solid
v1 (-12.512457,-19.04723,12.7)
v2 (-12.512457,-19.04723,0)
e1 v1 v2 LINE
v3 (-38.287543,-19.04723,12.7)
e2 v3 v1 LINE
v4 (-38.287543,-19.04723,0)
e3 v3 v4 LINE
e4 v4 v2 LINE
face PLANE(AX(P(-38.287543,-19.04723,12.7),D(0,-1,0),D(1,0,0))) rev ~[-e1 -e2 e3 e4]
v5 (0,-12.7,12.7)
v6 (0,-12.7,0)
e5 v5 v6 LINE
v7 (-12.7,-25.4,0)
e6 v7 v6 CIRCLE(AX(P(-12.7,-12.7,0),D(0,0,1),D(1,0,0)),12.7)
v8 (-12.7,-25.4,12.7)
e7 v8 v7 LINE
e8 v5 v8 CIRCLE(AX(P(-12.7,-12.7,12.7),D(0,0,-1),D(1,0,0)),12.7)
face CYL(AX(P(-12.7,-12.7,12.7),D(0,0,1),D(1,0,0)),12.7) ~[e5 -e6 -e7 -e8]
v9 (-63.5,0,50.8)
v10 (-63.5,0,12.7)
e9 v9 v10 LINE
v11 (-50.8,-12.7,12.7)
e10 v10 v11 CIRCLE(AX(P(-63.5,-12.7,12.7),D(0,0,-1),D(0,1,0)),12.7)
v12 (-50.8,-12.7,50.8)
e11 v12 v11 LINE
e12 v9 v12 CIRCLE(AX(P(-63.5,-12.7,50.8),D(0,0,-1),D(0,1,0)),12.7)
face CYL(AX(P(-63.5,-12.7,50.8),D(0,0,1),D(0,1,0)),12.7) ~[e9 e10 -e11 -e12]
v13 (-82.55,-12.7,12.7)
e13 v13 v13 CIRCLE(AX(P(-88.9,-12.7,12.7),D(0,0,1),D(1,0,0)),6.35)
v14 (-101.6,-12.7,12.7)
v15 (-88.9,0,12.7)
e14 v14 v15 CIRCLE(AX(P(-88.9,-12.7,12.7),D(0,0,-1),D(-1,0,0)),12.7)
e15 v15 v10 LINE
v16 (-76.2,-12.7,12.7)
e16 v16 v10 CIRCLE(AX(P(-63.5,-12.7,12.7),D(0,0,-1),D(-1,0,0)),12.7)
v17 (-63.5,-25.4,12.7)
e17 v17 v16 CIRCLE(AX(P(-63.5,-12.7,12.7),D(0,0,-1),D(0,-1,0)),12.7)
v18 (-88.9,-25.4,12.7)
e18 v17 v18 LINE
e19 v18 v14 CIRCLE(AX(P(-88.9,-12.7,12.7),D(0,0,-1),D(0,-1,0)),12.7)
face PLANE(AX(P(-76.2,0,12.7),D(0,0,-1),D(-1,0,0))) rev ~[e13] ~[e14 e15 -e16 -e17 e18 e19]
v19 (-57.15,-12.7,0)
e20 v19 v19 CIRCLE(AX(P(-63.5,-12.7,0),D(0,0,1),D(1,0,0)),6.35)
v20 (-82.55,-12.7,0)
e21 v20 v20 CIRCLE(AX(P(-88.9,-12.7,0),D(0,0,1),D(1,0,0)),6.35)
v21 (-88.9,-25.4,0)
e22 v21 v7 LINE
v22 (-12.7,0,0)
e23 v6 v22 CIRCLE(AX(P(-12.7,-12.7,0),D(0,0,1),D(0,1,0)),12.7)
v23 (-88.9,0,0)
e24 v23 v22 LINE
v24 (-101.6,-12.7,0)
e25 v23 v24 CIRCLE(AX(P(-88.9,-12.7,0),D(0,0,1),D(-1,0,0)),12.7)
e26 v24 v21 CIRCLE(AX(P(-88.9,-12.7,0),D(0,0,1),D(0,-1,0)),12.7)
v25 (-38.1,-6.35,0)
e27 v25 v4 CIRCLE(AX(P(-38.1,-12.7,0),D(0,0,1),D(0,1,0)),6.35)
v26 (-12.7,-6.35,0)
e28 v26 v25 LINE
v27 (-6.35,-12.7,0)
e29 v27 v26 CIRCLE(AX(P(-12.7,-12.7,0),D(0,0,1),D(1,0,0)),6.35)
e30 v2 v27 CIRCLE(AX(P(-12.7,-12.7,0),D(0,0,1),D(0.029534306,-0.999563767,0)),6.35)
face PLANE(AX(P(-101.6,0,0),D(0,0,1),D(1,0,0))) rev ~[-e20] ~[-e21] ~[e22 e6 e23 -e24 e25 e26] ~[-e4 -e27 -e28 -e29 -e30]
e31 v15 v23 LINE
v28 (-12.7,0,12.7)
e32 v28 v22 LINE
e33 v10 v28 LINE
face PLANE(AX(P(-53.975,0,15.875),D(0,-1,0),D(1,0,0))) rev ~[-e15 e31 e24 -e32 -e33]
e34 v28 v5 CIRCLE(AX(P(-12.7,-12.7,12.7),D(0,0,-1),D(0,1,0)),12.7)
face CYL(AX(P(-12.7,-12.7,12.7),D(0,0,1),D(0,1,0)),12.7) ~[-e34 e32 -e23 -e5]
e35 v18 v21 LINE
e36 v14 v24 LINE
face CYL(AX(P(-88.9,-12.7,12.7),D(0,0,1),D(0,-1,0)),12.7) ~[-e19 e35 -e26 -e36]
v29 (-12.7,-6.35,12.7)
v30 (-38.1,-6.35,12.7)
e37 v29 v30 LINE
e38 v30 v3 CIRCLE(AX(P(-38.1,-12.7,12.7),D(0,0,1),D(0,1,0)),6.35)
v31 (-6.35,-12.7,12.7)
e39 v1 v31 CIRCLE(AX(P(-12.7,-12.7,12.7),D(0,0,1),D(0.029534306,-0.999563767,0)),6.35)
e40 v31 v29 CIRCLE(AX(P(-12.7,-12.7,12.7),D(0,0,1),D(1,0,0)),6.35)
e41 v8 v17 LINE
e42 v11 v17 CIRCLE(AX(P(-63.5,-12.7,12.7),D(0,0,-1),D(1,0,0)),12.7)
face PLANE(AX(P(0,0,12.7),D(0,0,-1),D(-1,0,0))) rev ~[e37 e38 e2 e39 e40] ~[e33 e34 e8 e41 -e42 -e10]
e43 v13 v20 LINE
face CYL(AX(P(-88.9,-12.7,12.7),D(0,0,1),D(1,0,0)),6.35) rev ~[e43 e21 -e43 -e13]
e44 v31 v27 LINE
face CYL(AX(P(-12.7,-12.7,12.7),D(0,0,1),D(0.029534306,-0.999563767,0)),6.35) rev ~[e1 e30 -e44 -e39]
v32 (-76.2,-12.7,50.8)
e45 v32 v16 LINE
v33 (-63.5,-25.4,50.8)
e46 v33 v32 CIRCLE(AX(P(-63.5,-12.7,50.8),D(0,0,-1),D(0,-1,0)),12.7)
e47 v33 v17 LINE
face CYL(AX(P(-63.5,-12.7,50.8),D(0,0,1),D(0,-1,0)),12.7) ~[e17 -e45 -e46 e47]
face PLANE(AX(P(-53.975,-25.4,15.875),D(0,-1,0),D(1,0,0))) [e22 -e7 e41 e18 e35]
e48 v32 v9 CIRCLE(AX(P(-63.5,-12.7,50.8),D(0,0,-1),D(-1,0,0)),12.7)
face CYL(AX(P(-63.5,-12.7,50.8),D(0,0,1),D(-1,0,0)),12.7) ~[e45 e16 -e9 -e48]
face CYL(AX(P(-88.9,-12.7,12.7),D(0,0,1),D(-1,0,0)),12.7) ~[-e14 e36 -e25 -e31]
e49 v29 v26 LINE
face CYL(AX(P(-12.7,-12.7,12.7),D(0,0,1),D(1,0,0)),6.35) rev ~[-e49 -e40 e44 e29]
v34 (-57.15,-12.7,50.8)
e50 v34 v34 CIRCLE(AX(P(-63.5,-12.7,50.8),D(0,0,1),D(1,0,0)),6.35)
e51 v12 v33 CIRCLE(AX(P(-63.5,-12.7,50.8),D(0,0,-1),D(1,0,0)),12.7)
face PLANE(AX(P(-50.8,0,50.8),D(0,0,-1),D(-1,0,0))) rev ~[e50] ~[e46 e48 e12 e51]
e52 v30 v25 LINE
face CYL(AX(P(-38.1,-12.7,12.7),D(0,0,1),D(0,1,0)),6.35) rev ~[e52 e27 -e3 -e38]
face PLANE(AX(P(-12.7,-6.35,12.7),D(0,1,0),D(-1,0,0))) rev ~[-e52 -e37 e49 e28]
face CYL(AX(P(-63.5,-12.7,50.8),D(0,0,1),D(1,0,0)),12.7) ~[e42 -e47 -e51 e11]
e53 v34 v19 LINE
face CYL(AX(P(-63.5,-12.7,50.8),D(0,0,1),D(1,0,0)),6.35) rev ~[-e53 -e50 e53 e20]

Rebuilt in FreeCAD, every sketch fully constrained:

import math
import FreeCAD as App
import Part
import Sketcher
Q = App.Units.Quantity


def add_polygon(sketch, points):
    """Adds a closed chain of lines whose ends are joined by coincident constraints."""
    first, n = sketch.GeometryCount, len(points)
    for a, b in zip(points, points[1:] + points[:1]):
        sketch.addGeometry(Part.LineSegment(App.Vector(*a, 0), App.Vector(*b, 0)), False)
    for i in range(n):
        sketch.addConstraint(Sketcher.Constraint("Coincident", first + i, 2, first + (i + 1) % n, 1))

doc = App.newDocument("Part")
body = doc.addObject("PartDesign::Body", "Body")

# Sketch on XZ plane
sketch1 = body.newObject("Sketcher::SketchObject", "Sketch")
sketch1.AttachmentSupport = (doc.getObject("XZ_Plane"), [""])
sketch1.MapMode = "FlatFace"
add_polygon(sketch1, [(-102, 0), (0, 0), (0, 13), (-51, 13), (-51, 51), (-76, 51), (-76, 13), (-102, 13)])  # lines 0-7
sketch1.addConstraint([
    Sketcher.Constraint("Horizontal", 0),
    Sketcher.Constraint("Vertical", 1),
    Sketcher.Constraint("Horizontal", 2),
    Sketcher.Constraint("Vertical", 3),
    Sketcher.Constraint("Horizontal", 4),
    Sketcher.Constraint("Vertical", 5),
    Sketcher.Constraint("Horizontal", 6),
    Sketcher.Constraint("Vertical", 7),
    Sketcher.Constraint("Coincident", 0, 2, -1, 1),
    Sketcher.Constraint("Horizontal", 2, 2, 5, 2),
    Sketcher.Constraint("Equal", 4, 6),
    Sketcher.Constraint("DistanceX", 0, 1, 0, 2, Q("4 in")),
    Sketcher.Constraint("DistanceX", 2, 2, 2, 1, Q("2 in")),
    Sketcher.Constraint("DistanceY", 1, 1, 1, 2, Q("0.5 in")),
    Sketcher.Constraint("DistanceY", 3, 1, 3, 2, Q("1.5 in")),
])
pad1 = body.newObject("PartDesign::Pad", "Pad")
pad1.Profile = sketch1
pad1.Length = Q("1 in")

# Sketch on XY plane
sketch2 = body.newObject("Sketcher::SketchObject", "Sketch001")
sketch2.AttachmentSupport = (doc.getObject("XY_Plane"), [""])
sketch2.MapMode = "FlatFace"
sketch2.AttachmentOffset = App.Placement(App.Vector(0, 0, 2 * 25.4), App.Rotation())
sketch2.addGeometry([
    Part.ArcOfCircle(Part.Circle(App.Vector(-64, -13, 0), App.Vector(0, 0, 1), 13), math.radians(0), math.radians(90)),  # 0
    Part.LineSegment(App.Vector(-51, -13, 0), App.Vector(-51, 0, 0)),  # 1
    Part.LineSegment(App.Vector(-51, 0, 0), App.Vector(-64, 0, 0)),  # 2
    Part.ArcOfCircle(Part.Circle(App.Vector(-64, -13, 0), App.Vector(0, 0, 1), 13), math.radians(90), math.radians(180)),  # 3
    Part.LineSegment(App.Vector(-64, 0, 0), App.Vector(-76, 0, 0)),  # 4
    Part.LineSegment(App.Vector(-76, 0, 0), App.Vector(-76, -13, 0)),  # 5
    Part.LineSegment(App.Vector(-76, -25, 0), App.Vector(-64, -25, 0)),  # 6
    Part.ArcOfCircle(Part.Circle(App.Vector(-64, -13, 0), App.Vector(0, 0, 1), 13), math.radians(180), math.radians(270)),  # 7
    Part.LineSegment(App.Vector(-76, -13, 0), App.Vector(-76, -25, 0)),  # 8
    Part.LineSegment(App.Vector(-51, -25, 0), App.Vector(-51, -13, 0)),  # 9
    Part.ArcOfCircle(Part.Circle(App.Vector(-64, -13, 0), App.Vector(0, 0, 1), 13), math.radians(-90), math.radians(0)),  # 10
    Part.LineSegment(App.Vector(-64, -25, 0), App.Vector(-51, -25, 0)),  # 11
], False)
sketch2.addConstraint([
    Sketcher.Constraint("Tangent", 0, 1, 1, 1),
    Sketcher.Constraint("Coincident", 1, 2, 2, 1),
    Sketcher.Constraint("Tangent", 2, 2, 0, 2),
    Sketcher.Constraint("Tangent", 3, 1, 4, 1),
    Sketcher.Constraint("Coincident", 4, 2, 5, 1),
    Sketcher.Constraint("Tangent", 5, 2, 3, 2),
    Sketcher.Constraint("Tangent", 6, 2, 7, 2),
    Sketcher.Constraint("Tangent", 7, 1, 8, 1),
    Sketcher.Constraint("Coincident", 8, 2, 6, 1),
    Sketcher.Constraint("Tangent", 9, 2, 10, 2),
    Sketcher.Constraint("Tangent", 10, 1, 11, 1),
    Sketcher.Constraint("Coincident", 11, 2, 9, 1),
    Sketcher.Constraint("Vertical", 1),
    Sketcher.Constraint("Horizontal", 2),
    Sketcher.Constraint("Horizontal", 4),
    Sketcher.Constraint("Vertical", 5),
    Sketcher.Constraint("Horizontal", 6),
    Sketcher.Constraint("Vertical", 8),
    Sketcher.Constraint("Vertical", 9),
    Sketcher.Constraint("Horizontal", 11),
    Sketcher.Constraint("Coincident", 3, 3, 0, 3),
    Sketcher.Constraint("Coincident", 7, 3, 0, 3),
    Sketcher.Constraint("Coincident", 10, 3, 0, 3),
    Sketcher.Constraint("Equal", 0, 3),
    Sketcher.Constraint("Equal", 3, 7),
    Sketcher.Constraint("Equal", 7, 10),
    Sketcher.Constraint("PointOnObject", 1, 2, -1),
    Sketcher.Constraint("Radius", 0, Q("0.5 in")),
    Sketcher.Constraint("DistanceX", 0, 1, -1, 1, Q("2 in")),
])
pocket1 = body.newObject("PartDesign::Pocket", "Pocket")
pocket1.Profile = sketch2
pocket1.Length = Q("1.5 in")

# Sketch on XY plane
sketch3 = body.newObject("Sketcher::SketchObject", "Sketch002")
sketch3.AttachmentSupport = (doc.getObject("XY_Plane"), [""])
sketch3.MapMode = "FlatFace"
sketch3.AttachmentOffset = App.Placement(App.Vector(0, 0, 2 * 25.4), App.Rotation())
sketch3.addGeometry(Part.Circle(App.Vector(-64, -13, 0), App.Vector(0, 0, 1), 6), False)
sketch3.addConstraint([
    Sketcher.Constraint("Diameter", 0, Q("0.5 in")),
    Sketcher.Constraint("DistanceX", 0, 3, -1, 1, Q("2.5 in")),
    Sketcher.Constraint("DistanceY", 0, 3, -1, 1, Q("0.5 in")),
])
pocket2 = body.newObject("PartDesign::Pocket", "Pocket001")
pocket2.Profile = sketch3
pocket2.Length = Q("2.5 in")

# Sketch on XY plane
sketch4 = body.newObject("Sketcher::SketchObject", "Sketch003")
sketch4.AttachmentSupport = (doc.getObject("XY_Plane"), [""])
sketch4.MapMode = "FlatFace"
sketch4.AttachmentOffset = App.Placement(App.Vector(0, 0, 0.5 * 25.4), App.Rotation())
sketch4.addGeometry(Part.Circle(App.Vector(-89, -13, 0), App.Vector(0, 0, 1), 6), False)
sketch4.addConstraint([
    Sketcher.Constraint("Diameter", 0, Q("0.5 in")),
    Sketcher.Constraint("DistanceX", 0, 3, -1, 1, Q("3.5 in")),
    Sketcher.Constraint("DistanceY", 0, 3, -1, 1, Q("0.5 in")),
])
pocket3 = body.newObject("PartDesign::Pocket", "Pocket002")
pocket3.Profile = sketch4
pocket3.Length = Q("1 in")

# Sketch on XY plane
sketch5 = body.newObject("Sketcher::SketchObject", "Sketch004")
sketch5.AttachmentSupport = (doc.getObject("XY_Plane"), [""])
sketch5.MapMode = "FlatFace"
sketch5.AttachmentOffset = App.Placement(App.Vector(0, 0, 0.5 * 25.4), App.Rotation())
sketch5.addGeometry([
    Part.ArcOfCircle(Part.Circle(App.Vector(-89, -13, 0), App.Vector(0, 0, 1), 13), math.radians(90), math.radians(180)),  # 0
    Part.LineSegment(App.Vector(-89, 0, 0), App.Vector(-102, 0, 0)),  # 1
    Part.LineSegment(App.Vector(-102, 0, 0), App.Vector(-102, -13, 0)),  # 2
    Part.LineSegment(App.Vector(-102, -25, 0), App.Vector(-89, -25, 0)),  # 3
    Part.ArcOfCircle(Part.Circle(App.Vector(-89, -13, 0), App.Vector(0, 0, 1), 13), math.radians(180), math.radians(270)),  # 4
    Part.LineSegment(App.Vector(-102, -13, 0), App.Vector(-102, -25, 0)),  # 5
], False)
sketch5.addConstraint([
    Sketcher.Constraint("Tangent", 0, 1, 1, 1),
    Sketcher.Constraint("Coincident", 1, 2, 2, 1),
    Sketcher.Constraint("Tangent", 2, 2, 0, 2),
    Sketcher.Constraint("Tangent", 3, 2, 4, 2),
    Sketcher.Constraint("Tangent", 4, 1, 5, 1),
    Sketcher.Constraint("Coincident", 5, 2, 3, 1),
    Sketcher.Constraint("Horizontal", 1),
    Sketcher.Constraint("Vertical", 2),
    Sketcher.Constraint("Horizontal", 3),
    Sketcher.Constraint("Vertical", 5),
    Sketcher.Constraint("Coincident", 4, 3, 0, 3),
    Sketcher.Constraint("Equal", 0, 4),
    Sketcher.Constraint("PointOnObject", 0, 1, -1),
    Sketcher.Constraint("Radius", 0, Q("0.5 in")),
    Sketcher.Constraint("DistanceX", 1, 2, -1, 1, Q("4 in")),
])
pocket4 = body.newObject("PartDesign::Pocket", "Pocket003")
pocket4.Profile = sketch5
pocket4.Length = Q("1 in")

# Sketch on XY plane
sketch6 = body.newObject("Sketcher::SketchObject", "Sketch005")
sketch6.AttachmentSupport = (doc.getObject("XY_Plane"), [""])
sketch6.MapMode = "FlatFace"
sketch6.AttachmentOffset = App.Placement(App.Vector(0, 0, 0.5 * 25.4), App.Rotation())
sketch6.addGeometry([
    Part.ArcOfCircle(Part.Circle(App.Vector(-38, -13, 0), App.Vector(0, 0, 1), 6), math.radians(90), math.radians(268)),  # 0
    Part.LineSegment(App.Vector(-38, -19, 0), App.Vector(-13, -19, 0)),  # 1
    Part.ArcOfCircle(Part.Circle(App.Vector(-13, -13, 0), App.Vector(0, 0, 1), 6), math.radians(-88), math.radians(0)),  # 2
    Part.ArcOfCircle(Part.Circle(App.Vector(-13, -13, 0), App.Vector(0, 0, 1), 6), math.radians(0), math.radians(90)),  # 3
    Part.LineSegment(App.Vector(-13, -6, 0), App.Vector(-38, -6, 0)),  # 4
], False)
sketch6.addConstraint([
    Sketcher.Constraint("Coincident", 0, 2, 1, 1),
    Sketcher.Constraint("Coincident", 1, 2, 2, 1),
    Sketcher.Constraint("Tangent", 2, 2, 3, 1),
    Sketcher.Constraint("Tangent", 3, 2, 4, 1),
    Sketcher.Constraint("Tangent", 4, 2, 0, 1),
    Sketcher.Constraint("Horizontal", 1),
    Sketcher.Constraint("Horizontal", 4),
    Sketcher.Constraint("Equal", 0, 2),
    Sketcher.Constraint("Equal", 2, 3),
    Sketcher.Constraint("Horizontal", 3, 3, 2, 2),
    Sketcher.Constraint("DistanceX", 4, 2, 4, 1, Q("1 in")),
    Sketcher.Constraint("Radius", 0, Q("0.25 in")),
    Sketcher.Constraint("DistanceX", 0, 3, -1, 1, Q("1.5 in")),
    Sketcher.Constraint("DistanceY", 0, 3, -1, 1, Q("0.5 in")),
    Sketcher.Constraint("DistanceX", 1, 1, 1, 2, 25.775086),
])
pocket5 = body.newObject("PartDesign::Pocket", "Pocket004")
pocket5.Profile = sketch6
pocket5.Length = Q("1 in")

# Sketch on XY plane
sketch7 = body.newObject("Sketcher::SketchObject", "Sketch006")
sketch7.AttachmentSupport = (doc.getObject("XY_Plane"), [""])
sketch7.MapMode = "FlatFace"
sketch7.AttachmentOffset = App.Placement(App.Vector(0, 0, 0.5 * 25.4), App.Rotation())
sketch7.addGeometry([
    Part.ArcOfCircle(Part.Circle(App.Vector(-13, -13, 0), App.Vector(0, 0, 1), 13), math.radians(0), math.radians(90)),  # 0
    Part.LineSegment(App.Vector(0, -13, 0), App.Vector(0, 0, 0)),  # 1
    Part.LineSegment(App.Vector(0, 0, 0), App.Vector(-13, 0, 0)),  # 2
    Part.LineSegment(App.Vector(0, -25, 0), App.Vector(0, -13, 0)),  # 3
    Part.ArcOfCircle(Part.Circle(App.Vector(-13, -13, 0), App.Vector(0, 0, 1), 13), math.radians(-90), math.radians(0)),  # 4
    Part.LineSegment(App.Vector(-13, -25, 0), App.Vector(0, -25, 0)),  # 5
], False)
sketch7.addConstraint([
    Sketcher.Constraint("Tangent", 0, 1, 1, 1),
    Sketcher.Constraint("Coincident", 1, 2, 2, 1),
    Sketcher.Constraint("Tangent", 2, 2, 0, 2),
    Sketcher.Constraint("Tangent", 3, 2, 4, 2),
    Sketcher.Constraint("Tangent", 4, 1, 5, 1),
    Sketcher.Constraint("Coincident", 5, 2, 3, 1),
    Sketcher.Constraint("Vertical", 1),
    Sketcher.Constraint("Horizontal", 2),
    Sketcher.Constraint("Vertical", 3),
    Sketcher.Constraint("Horizontal", 5),
    Sketcher.Constraint("Coincident", 1, 2, -1, 1),
    Sketcher.Constraint("Coincident", 4, 3, 0, 3),
    Sketcher.Constraint("Equal", 0, 4),
    Sketcher.Constraint("Radius", 0, Q("0.5 in")),
])
pocket6 = body.newObject("PartDesign::Pocket", "Pocket005")
pocket6.Profile = sketch7
pocket6.Length = Q("1 in")

doc.recompute()
